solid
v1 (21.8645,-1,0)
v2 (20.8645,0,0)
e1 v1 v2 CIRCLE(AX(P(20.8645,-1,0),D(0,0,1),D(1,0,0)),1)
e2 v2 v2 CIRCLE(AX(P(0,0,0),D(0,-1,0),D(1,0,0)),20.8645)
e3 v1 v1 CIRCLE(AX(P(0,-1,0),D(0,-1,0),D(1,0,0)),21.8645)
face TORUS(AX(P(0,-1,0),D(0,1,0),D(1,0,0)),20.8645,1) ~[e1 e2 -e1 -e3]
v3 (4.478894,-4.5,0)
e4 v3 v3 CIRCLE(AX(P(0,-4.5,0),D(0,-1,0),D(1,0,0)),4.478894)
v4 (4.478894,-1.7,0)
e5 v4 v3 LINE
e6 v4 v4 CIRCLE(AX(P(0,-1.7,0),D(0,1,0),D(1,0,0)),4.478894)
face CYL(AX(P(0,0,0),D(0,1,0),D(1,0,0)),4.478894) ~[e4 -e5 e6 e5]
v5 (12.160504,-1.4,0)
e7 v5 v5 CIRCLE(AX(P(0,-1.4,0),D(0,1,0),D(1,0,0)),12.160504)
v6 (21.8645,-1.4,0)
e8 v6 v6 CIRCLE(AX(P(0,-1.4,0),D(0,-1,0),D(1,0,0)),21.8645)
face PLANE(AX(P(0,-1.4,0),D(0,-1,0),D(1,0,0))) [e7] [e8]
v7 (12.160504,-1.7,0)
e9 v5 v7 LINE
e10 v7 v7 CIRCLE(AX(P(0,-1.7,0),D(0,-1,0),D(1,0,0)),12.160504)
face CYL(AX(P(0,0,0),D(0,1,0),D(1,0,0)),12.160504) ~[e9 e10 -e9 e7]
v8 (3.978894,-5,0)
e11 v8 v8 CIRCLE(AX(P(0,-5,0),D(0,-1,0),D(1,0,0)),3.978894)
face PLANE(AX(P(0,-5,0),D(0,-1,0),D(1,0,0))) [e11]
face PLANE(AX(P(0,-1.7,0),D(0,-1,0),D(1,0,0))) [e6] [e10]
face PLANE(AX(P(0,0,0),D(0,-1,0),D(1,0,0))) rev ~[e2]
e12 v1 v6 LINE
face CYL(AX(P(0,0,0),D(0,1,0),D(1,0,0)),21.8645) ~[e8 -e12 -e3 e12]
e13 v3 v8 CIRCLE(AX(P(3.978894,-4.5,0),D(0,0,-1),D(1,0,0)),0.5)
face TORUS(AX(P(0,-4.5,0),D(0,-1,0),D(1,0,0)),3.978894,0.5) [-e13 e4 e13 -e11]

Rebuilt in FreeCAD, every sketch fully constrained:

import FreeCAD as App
import Part
import Sketcher
Q = App.Units.Quantity


def edges_at(feature, points):
    """Names of the edges that pass closest to the given points."""
    edges = feature.Shape.Edges
    near = lambda p: min(range(len(edges)), key=lambda i: edges[i].distToShape(Part.Vertex(*p))[0])
    return sorted({f"Edge{near(p) + 1}" for p in points})

doc = App.newDocument("Part")
params = doc.addObject("Spreadsheet::Sheet", "Params")
for row, (alias, value) in enumerate([
    ("pad1_length", "5 mm"),
    ("pad2_length", "1.7 mm"),
    ("pad3_length", "1.4 mm"),
    ("fillet_radius", "1 mm"),
    ("fillet2_radius", "0.5 mm"),
], start=1):
    params.set(f"A{row}", alias)
    params.set(f"B{row}", "=" + value)
    params.setAlias(f"B{row}", alias)

body = doc.addObject("PartDesign::Body", "Body")

sketch1 = body.newObject("Sketcher::SketchObject", "Sketch")
sketch1.AttachmentSupport = (doc.getObject("XZ_Plane"), [""])
sketch1.MapMode = "FlatFace"
sketch1.addGeometry(Part.Circle(App.Vector(0, 0, 0), App.Vector(0, 0, 1), 4.478894), False)
sketch1.addConstraint(Sketcher.Constraint("Coincident", 0, 3, -1, 1))
sketch1.addConstraint(Sketcher.Constraint("Diameter", 0, Q("8.957788 mm")))
pad1 = body.newObject("PartDesign::Pad", "Pad")
pad1.Profile = sketch1
pad1.setExpression("Length", "Params.pad1_length")

sketch2 = body.newObject("Sketcher::SketchObject", "Sketch001")
sketch2.AttachmentSupport = (doc.getObject("XZ_Plane"), [""])
sketch2.MapMode = "FlatFace"
sketch2.addGeometry(Part.Circle(App.Vector(0, 0, 0), App.Vector(0, 0, 1), 12.160504), False)
sketch2.addConstraint(Sketcher.Constraint("Coincident", 0, 3, -1, 1))
sketch2.addConstraint(Sketcher.Constraint("Diameter", 0, Q("24.321008 mm")))
pad2 = body.newObject("PartDesign::Pad", "Pad001")
pad2.Profile = sketch2
pad2.setExpression("Length", "Params.pad2_length")

sketch3 = body.newObject("Sketcher::SketchObject", "Sketch002")
sketch3.AttachmentSupport = (doc.getObject("XZ_Plane"), [""])
sketch3.MapMode = "FlatFace"
sketch3.addGeometry(Part.Circle(App.Vector(0, 0, 0), App.Vector(0, 0, 1), 21.8645), False)
sketch3.addConstraint(Sketcher.Constraint("Coincident", 0, 3, -1, 1))
sketch3.addConstraint(Sketcher.Constraint("Diameter", 0, Q("43.729 mm")))
pad3 = body.newObject("PartDesign::Pad", "Pad002")
pad3.Profile = sketch3
pad3.setExpression("Length", "Params.pad3_length")
doc.recompute()

fillet = body.newObject("PartDesign::Fillet", "Fillet")
fillet.Base = (pad3, edges_at(pad3, [(-21.864, 0, 0)]))
fillet.setExpression("Radius", "Params.fillet_radius")
doc.recompute()

fillet2 = body.newObject("PartDesign::Fillet", "Fillet001")
fillet2.Base = (fillet, edges_at(fillet, [(-4.479, -5, 0)]))
fillet2.setExpression("Radius", "Params.fillet2_radius")

doc.recompute()
